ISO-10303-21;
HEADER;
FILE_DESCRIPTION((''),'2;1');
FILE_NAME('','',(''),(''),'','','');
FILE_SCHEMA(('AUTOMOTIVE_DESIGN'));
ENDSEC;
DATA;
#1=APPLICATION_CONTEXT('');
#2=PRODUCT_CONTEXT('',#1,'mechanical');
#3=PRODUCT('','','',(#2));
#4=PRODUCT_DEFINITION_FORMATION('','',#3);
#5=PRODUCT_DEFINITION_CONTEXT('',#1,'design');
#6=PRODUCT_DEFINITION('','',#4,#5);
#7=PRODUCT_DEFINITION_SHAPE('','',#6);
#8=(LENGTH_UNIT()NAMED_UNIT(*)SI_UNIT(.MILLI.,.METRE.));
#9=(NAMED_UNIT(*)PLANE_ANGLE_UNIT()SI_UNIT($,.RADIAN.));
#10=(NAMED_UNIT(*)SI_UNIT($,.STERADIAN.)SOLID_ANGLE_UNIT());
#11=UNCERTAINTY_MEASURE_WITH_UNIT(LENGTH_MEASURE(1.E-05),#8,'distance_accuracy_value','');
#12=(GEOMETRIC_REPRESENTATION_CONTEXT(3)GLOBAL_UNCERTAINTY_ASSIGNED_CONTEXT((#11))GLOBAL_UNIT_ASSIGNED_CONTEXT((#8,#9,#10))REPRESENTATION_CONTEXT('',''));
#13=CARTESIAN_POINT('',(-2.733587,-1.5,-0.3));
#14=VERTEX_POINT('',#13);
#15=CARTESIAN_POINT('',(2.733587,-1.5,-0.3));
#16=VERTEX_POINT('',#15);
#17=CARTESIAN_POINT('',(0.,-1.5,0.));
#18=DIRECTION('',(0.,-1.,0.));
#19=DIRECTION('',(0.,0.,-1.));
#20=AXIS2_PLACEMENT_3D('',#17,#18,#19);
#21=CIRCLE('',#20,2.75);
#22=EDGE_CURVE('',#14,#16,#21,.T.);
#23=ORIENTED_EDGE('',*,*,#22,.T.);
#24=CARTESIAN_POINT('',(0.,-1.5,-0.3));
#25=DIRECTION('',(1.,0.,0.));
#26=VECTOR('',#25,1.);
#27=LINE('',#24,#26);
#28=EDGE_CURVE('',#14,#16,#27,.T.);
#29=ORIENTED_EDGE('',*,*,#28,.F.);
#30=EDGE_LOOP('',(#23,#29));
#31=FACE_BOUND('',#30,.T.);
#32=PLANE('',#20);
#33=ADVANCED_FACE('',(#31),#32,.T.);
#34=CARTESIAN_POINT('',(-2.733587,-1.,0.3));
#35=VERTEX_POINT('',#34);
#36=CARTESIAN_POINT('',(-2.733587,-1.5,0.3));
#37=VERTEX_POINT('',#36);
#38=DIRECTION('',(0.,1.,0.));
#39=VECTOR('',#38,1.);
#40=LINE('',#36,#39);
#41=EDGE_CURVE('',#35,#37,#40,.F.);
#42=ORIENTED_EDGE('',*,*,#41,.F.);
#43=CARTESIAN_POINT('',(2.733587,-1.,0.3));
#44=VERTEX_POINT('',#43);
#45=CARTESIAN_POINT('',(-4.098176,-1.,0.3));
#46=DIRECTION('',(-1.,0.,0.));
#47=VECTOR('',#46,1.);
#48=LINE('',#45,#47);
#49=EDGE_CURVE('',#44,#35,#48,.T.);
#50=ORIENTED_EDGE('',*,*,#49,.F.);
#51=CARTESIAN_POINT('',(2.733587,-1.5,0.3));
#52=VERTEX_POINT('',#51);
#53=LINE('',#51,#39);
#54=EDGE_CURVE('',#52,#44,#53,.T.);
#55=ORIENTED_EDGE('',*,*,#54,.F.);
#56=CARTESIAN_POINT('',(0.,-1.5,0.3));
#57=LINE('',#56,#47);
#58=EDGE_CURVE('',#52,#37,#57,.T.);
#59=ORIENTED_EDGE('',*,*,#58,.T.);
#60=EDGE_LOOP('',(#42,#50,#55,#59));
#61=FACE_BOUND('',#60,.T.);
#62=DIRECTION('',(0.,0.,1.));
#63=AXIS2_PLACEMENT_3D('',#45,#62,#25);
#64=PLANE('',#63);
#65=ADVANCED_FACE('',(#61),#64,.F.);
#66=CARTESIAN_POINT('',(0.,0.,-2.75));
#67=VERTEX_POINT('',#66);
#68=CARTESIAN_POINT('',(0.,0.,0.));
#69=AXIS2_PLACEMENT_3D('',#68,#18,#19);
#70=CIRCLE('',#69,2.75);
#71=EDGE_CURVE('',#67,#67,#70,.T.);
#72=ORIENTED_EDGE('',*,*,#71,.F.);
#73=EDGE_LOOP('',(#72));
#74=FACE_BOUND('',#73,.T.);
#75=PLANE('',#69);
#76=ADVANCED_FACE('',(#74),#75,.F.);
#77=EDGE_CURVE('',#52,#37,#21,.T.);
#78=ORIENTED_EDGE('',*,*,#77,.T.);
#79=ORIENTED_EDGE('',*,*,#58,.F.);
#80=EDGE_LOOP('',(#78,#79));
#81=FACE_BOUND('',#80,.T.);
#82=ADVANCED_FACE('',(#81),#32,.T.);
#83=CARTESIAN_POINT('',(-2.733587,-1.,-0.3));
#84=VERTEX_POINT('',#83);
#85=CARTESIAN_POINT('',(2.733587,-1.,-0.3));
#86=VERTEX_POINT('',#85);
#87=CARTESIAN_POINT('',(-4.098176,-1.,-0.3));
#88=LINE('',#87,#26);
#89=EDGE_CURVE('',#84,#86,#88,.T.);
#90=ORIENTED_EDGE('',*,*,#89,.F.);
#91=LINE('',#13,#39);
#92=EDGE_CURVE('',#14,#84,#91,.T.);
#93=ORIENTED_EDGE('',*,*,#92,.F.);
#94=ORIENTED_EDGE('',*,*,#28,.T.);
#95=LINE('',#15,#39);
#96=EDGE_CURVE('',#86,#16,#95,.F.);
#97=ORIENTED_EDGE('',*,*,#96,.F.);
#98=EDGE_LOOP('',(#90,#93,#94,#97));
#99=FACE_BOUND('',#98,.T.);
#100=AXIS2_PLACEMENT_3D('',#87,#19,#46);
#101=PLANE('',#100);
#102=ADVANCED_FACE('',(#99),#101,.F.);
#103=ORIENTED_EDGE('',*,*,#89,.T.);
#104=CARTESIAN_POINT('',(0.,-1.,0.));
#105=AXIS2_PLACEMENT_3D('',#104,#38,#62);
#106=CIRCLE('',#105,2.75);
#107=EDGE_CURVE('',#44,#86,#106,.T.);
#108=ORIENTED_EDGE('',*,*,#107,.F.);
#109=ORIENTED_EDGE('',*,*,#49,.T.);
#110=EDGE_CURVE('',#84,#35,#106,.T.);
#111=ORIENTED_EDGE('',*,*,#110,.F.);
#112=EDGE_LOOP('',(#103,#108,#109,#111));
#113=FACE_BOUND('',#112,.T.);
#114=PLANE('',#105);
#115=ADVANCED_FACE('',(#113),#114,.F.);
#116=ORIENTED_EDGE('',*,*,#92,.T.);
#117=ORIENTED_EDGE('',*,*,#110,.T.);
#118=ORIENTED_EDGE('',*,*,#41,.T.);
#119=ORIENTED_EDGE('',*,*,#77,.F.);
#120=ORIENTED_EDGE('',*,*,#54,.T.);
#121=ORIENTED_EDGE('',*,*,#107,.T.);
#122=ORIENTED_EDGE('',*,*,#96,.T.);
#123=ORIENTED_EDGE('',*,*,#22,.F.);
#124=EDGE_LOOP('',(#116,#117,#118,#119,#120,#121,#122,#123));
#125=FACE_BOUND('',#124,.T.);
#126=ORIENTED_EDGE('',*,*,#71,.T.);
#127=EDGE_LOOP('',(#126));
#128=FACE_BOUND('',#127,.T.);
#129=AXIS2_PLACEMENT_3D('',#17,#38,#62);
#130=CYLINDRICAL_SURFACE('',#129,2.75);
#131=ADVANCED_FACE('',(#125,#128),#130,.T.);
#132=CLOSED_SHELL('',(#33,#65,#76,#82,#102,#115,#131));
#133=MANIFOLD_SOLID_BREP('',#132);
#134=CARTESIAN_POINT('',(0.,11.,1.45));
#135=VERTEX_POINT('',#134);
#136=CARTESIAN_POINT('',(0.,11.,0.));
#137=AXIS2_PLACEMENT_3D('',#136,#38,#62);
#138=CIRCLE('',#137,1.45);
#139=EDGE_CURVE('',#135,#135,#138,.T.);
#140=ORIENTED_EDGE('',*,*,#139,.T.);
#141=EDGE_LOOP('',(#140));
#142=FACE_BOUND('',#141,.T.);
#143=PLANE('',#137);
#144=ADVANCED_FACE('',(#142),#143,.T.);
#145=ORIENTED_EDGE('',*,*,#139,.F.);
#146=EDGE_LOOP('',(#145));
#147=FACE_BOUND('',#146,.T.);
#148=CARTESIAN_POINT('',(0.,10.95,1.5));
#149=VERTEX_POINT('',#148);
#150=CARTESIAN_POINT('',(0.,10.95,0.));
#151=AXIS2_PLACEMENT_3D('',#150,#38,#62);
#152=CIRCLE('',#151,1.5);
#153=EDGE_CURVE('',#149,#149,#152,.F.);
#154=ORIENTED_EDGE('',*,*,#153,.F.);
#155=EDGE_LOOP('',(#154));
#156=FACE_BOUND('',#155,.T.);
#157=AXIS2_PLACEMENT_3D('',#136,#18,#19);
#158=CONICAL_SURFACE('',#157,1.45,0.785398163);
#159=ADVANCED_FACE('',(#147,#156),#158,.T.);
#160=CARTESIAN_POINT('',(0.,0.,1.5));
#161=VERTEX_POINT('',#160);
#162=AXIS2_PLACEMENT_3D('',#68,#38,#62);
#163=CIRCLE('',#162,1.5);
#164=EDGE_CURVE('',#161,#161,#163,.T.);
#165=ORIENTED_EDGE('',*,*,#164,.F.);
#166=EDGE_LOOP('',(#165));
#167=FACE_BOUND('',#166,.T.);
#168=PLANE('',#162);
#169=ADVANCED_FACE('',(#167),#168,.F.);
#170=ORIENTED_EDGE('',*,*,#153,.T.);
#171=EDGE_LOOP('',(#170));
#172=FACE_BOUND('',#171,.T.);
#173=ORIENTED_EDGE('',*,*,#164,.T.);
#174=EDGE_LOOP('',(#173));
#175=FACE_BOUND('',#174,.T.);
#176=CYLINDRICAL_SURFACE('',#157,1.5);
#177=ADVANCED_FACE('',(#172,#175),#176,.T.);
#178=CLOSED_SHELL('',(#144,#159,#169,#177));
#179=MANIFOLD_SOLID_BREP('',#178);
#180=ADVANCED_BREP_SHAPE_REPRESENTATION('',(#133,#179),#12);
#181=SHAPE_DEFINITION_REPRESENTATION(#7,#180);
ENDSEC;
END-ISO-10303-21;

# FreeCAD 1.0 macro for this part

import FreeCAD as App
import Part
import Sketcher

V = App.Vector
Q = App.Units.Quantity


def edges_at(feature, points):
    """Names of the edges that pass closest to the given points."""
    edges = feature.Shape.Edges
    near = lambda p: min(range(len(edges)), key=lambda i: edges[i].distToShape(Part.Vertex(*p))[0])
    return sorted({f"Edge{near(p) + 1}" for p in points})


def add_polygon(sketch, points):
    """Adds a closed chain of lines whose ends are joined by coincident constraints."""
    first, n = sketch.GeometryCount, len(points)
    for a, b in zip(points, points[1:] + points[:1]):
        sketch.addGeometry(Part.LineSegment(App.Vector(*a, 0), App.Vector(*b, 0)), False)
    for i in range(n):
        sketch.addConstraint(Sketcher.Constraint("Coincident", first + i, 2, first + (i + 1) % n, 1))

doc = App.newDocument("Part")
body = doc.addObject("PartDesign::Body", "Body")

sketch1 = body.newObject("Sketcher::SketchObject", "Sketch")
sketch1.AttachmentSupport = (doc.getObject("XZ_Plane"), [""])
sketch1.MapMode = "FlatFace"
sketch1.addGeometry(Part.Circle(V(0, 0, 0), V(0, 0, 1), 1.5), False)
sketch1.addConstraint(Sketcher.Constraint("Coincident", 0, 3, -1, 1))
sketch1.addConstraint(Sketcher.Constraint("Diameter", 0, Q("3 mm")))
pad1 = body.newObject("PartDesign::Pad", "Pad")
pad1.Profile = sketch1
pad1.Length = 11
pad1.Reversed = True
doc.recompute()

chamfer = body.newObject("PartDesign::Chamfer", "Chamfer")
chamfer.Base = (pad1, edges_at(pad1, [(-1.5, 11, 0)]))
chamfer.Size = 0.05
body2 = doc.addObject("PartDesign::Body", "Body001")

sketch2 = body2.newObject("Sketcher::SketchObject", "Sketch001")
sketch2.AttachmentSupport = (doc.getObject("XZ_Plane001"), [""])
sketch2.MapMode = "FlatFace"
sketch2.addGeometry(Part.Circle(V(0, 0, 0), V(0, 0, 1), 2.8), False)
sketch2.addConstraint(Sketcher.Constraint("Coincident", 0, 3, -1, 1))
sketch2.addConstraint(Sketcher.Constraint("Diameter", 0, Q("5.5 mm")))
pad2 = body2.newObject("PartDesign::Pad", "Pad001")
pad2.Profile = sketch2
pad2.Length = 1.5

sketch3 = body2.newObject("Sketcher::SketchObject", "Sketch002")
sketch3.AttachmentSupport = (doc.getObject("XZ_Plane001"), [""])
sketch3.MapMode = "FlatFace"
sketch3.AttachmentOffset = App.Placement(V(0, 0, 1.5), App.Rotation())
add_polygon(sketch3, [(-4.1, 0.3), (-4.1, -0.3), (4.1, -0.3), (4.1, 0.3)])
sketch3.addConstraint(Sketcher.Constraint("Vertical", 0))
sketch3.addConstraint(Sketcher.Constraint("Horizontal", 1))
sketch3.addConstraint(Sketcher.Constraint("Vertical", 2))
sketch3.addConstraint(Sketcher.Constraint("Horizontal", 3))
sketch3.addConstraint(Sketcher.Constraint("Symmetric", 0, 2, 2, 2, -1, 1))
sketch3.addConstraint(Sketcher.Constraint("DistanceY", 0, 2, 0, 1, Q("0.6 mm")))
sketch3.addConstraint(Sketcher.Constraint("DistanceX", 1, 1, 1, 2, Q("8.196352 mm")))
pocket1 = body2.newObject("PartDesign::Pocket", "Pocket")
pocket1.Profile = sketch3
pocket1.Length = 0.5

doc.recompute()
